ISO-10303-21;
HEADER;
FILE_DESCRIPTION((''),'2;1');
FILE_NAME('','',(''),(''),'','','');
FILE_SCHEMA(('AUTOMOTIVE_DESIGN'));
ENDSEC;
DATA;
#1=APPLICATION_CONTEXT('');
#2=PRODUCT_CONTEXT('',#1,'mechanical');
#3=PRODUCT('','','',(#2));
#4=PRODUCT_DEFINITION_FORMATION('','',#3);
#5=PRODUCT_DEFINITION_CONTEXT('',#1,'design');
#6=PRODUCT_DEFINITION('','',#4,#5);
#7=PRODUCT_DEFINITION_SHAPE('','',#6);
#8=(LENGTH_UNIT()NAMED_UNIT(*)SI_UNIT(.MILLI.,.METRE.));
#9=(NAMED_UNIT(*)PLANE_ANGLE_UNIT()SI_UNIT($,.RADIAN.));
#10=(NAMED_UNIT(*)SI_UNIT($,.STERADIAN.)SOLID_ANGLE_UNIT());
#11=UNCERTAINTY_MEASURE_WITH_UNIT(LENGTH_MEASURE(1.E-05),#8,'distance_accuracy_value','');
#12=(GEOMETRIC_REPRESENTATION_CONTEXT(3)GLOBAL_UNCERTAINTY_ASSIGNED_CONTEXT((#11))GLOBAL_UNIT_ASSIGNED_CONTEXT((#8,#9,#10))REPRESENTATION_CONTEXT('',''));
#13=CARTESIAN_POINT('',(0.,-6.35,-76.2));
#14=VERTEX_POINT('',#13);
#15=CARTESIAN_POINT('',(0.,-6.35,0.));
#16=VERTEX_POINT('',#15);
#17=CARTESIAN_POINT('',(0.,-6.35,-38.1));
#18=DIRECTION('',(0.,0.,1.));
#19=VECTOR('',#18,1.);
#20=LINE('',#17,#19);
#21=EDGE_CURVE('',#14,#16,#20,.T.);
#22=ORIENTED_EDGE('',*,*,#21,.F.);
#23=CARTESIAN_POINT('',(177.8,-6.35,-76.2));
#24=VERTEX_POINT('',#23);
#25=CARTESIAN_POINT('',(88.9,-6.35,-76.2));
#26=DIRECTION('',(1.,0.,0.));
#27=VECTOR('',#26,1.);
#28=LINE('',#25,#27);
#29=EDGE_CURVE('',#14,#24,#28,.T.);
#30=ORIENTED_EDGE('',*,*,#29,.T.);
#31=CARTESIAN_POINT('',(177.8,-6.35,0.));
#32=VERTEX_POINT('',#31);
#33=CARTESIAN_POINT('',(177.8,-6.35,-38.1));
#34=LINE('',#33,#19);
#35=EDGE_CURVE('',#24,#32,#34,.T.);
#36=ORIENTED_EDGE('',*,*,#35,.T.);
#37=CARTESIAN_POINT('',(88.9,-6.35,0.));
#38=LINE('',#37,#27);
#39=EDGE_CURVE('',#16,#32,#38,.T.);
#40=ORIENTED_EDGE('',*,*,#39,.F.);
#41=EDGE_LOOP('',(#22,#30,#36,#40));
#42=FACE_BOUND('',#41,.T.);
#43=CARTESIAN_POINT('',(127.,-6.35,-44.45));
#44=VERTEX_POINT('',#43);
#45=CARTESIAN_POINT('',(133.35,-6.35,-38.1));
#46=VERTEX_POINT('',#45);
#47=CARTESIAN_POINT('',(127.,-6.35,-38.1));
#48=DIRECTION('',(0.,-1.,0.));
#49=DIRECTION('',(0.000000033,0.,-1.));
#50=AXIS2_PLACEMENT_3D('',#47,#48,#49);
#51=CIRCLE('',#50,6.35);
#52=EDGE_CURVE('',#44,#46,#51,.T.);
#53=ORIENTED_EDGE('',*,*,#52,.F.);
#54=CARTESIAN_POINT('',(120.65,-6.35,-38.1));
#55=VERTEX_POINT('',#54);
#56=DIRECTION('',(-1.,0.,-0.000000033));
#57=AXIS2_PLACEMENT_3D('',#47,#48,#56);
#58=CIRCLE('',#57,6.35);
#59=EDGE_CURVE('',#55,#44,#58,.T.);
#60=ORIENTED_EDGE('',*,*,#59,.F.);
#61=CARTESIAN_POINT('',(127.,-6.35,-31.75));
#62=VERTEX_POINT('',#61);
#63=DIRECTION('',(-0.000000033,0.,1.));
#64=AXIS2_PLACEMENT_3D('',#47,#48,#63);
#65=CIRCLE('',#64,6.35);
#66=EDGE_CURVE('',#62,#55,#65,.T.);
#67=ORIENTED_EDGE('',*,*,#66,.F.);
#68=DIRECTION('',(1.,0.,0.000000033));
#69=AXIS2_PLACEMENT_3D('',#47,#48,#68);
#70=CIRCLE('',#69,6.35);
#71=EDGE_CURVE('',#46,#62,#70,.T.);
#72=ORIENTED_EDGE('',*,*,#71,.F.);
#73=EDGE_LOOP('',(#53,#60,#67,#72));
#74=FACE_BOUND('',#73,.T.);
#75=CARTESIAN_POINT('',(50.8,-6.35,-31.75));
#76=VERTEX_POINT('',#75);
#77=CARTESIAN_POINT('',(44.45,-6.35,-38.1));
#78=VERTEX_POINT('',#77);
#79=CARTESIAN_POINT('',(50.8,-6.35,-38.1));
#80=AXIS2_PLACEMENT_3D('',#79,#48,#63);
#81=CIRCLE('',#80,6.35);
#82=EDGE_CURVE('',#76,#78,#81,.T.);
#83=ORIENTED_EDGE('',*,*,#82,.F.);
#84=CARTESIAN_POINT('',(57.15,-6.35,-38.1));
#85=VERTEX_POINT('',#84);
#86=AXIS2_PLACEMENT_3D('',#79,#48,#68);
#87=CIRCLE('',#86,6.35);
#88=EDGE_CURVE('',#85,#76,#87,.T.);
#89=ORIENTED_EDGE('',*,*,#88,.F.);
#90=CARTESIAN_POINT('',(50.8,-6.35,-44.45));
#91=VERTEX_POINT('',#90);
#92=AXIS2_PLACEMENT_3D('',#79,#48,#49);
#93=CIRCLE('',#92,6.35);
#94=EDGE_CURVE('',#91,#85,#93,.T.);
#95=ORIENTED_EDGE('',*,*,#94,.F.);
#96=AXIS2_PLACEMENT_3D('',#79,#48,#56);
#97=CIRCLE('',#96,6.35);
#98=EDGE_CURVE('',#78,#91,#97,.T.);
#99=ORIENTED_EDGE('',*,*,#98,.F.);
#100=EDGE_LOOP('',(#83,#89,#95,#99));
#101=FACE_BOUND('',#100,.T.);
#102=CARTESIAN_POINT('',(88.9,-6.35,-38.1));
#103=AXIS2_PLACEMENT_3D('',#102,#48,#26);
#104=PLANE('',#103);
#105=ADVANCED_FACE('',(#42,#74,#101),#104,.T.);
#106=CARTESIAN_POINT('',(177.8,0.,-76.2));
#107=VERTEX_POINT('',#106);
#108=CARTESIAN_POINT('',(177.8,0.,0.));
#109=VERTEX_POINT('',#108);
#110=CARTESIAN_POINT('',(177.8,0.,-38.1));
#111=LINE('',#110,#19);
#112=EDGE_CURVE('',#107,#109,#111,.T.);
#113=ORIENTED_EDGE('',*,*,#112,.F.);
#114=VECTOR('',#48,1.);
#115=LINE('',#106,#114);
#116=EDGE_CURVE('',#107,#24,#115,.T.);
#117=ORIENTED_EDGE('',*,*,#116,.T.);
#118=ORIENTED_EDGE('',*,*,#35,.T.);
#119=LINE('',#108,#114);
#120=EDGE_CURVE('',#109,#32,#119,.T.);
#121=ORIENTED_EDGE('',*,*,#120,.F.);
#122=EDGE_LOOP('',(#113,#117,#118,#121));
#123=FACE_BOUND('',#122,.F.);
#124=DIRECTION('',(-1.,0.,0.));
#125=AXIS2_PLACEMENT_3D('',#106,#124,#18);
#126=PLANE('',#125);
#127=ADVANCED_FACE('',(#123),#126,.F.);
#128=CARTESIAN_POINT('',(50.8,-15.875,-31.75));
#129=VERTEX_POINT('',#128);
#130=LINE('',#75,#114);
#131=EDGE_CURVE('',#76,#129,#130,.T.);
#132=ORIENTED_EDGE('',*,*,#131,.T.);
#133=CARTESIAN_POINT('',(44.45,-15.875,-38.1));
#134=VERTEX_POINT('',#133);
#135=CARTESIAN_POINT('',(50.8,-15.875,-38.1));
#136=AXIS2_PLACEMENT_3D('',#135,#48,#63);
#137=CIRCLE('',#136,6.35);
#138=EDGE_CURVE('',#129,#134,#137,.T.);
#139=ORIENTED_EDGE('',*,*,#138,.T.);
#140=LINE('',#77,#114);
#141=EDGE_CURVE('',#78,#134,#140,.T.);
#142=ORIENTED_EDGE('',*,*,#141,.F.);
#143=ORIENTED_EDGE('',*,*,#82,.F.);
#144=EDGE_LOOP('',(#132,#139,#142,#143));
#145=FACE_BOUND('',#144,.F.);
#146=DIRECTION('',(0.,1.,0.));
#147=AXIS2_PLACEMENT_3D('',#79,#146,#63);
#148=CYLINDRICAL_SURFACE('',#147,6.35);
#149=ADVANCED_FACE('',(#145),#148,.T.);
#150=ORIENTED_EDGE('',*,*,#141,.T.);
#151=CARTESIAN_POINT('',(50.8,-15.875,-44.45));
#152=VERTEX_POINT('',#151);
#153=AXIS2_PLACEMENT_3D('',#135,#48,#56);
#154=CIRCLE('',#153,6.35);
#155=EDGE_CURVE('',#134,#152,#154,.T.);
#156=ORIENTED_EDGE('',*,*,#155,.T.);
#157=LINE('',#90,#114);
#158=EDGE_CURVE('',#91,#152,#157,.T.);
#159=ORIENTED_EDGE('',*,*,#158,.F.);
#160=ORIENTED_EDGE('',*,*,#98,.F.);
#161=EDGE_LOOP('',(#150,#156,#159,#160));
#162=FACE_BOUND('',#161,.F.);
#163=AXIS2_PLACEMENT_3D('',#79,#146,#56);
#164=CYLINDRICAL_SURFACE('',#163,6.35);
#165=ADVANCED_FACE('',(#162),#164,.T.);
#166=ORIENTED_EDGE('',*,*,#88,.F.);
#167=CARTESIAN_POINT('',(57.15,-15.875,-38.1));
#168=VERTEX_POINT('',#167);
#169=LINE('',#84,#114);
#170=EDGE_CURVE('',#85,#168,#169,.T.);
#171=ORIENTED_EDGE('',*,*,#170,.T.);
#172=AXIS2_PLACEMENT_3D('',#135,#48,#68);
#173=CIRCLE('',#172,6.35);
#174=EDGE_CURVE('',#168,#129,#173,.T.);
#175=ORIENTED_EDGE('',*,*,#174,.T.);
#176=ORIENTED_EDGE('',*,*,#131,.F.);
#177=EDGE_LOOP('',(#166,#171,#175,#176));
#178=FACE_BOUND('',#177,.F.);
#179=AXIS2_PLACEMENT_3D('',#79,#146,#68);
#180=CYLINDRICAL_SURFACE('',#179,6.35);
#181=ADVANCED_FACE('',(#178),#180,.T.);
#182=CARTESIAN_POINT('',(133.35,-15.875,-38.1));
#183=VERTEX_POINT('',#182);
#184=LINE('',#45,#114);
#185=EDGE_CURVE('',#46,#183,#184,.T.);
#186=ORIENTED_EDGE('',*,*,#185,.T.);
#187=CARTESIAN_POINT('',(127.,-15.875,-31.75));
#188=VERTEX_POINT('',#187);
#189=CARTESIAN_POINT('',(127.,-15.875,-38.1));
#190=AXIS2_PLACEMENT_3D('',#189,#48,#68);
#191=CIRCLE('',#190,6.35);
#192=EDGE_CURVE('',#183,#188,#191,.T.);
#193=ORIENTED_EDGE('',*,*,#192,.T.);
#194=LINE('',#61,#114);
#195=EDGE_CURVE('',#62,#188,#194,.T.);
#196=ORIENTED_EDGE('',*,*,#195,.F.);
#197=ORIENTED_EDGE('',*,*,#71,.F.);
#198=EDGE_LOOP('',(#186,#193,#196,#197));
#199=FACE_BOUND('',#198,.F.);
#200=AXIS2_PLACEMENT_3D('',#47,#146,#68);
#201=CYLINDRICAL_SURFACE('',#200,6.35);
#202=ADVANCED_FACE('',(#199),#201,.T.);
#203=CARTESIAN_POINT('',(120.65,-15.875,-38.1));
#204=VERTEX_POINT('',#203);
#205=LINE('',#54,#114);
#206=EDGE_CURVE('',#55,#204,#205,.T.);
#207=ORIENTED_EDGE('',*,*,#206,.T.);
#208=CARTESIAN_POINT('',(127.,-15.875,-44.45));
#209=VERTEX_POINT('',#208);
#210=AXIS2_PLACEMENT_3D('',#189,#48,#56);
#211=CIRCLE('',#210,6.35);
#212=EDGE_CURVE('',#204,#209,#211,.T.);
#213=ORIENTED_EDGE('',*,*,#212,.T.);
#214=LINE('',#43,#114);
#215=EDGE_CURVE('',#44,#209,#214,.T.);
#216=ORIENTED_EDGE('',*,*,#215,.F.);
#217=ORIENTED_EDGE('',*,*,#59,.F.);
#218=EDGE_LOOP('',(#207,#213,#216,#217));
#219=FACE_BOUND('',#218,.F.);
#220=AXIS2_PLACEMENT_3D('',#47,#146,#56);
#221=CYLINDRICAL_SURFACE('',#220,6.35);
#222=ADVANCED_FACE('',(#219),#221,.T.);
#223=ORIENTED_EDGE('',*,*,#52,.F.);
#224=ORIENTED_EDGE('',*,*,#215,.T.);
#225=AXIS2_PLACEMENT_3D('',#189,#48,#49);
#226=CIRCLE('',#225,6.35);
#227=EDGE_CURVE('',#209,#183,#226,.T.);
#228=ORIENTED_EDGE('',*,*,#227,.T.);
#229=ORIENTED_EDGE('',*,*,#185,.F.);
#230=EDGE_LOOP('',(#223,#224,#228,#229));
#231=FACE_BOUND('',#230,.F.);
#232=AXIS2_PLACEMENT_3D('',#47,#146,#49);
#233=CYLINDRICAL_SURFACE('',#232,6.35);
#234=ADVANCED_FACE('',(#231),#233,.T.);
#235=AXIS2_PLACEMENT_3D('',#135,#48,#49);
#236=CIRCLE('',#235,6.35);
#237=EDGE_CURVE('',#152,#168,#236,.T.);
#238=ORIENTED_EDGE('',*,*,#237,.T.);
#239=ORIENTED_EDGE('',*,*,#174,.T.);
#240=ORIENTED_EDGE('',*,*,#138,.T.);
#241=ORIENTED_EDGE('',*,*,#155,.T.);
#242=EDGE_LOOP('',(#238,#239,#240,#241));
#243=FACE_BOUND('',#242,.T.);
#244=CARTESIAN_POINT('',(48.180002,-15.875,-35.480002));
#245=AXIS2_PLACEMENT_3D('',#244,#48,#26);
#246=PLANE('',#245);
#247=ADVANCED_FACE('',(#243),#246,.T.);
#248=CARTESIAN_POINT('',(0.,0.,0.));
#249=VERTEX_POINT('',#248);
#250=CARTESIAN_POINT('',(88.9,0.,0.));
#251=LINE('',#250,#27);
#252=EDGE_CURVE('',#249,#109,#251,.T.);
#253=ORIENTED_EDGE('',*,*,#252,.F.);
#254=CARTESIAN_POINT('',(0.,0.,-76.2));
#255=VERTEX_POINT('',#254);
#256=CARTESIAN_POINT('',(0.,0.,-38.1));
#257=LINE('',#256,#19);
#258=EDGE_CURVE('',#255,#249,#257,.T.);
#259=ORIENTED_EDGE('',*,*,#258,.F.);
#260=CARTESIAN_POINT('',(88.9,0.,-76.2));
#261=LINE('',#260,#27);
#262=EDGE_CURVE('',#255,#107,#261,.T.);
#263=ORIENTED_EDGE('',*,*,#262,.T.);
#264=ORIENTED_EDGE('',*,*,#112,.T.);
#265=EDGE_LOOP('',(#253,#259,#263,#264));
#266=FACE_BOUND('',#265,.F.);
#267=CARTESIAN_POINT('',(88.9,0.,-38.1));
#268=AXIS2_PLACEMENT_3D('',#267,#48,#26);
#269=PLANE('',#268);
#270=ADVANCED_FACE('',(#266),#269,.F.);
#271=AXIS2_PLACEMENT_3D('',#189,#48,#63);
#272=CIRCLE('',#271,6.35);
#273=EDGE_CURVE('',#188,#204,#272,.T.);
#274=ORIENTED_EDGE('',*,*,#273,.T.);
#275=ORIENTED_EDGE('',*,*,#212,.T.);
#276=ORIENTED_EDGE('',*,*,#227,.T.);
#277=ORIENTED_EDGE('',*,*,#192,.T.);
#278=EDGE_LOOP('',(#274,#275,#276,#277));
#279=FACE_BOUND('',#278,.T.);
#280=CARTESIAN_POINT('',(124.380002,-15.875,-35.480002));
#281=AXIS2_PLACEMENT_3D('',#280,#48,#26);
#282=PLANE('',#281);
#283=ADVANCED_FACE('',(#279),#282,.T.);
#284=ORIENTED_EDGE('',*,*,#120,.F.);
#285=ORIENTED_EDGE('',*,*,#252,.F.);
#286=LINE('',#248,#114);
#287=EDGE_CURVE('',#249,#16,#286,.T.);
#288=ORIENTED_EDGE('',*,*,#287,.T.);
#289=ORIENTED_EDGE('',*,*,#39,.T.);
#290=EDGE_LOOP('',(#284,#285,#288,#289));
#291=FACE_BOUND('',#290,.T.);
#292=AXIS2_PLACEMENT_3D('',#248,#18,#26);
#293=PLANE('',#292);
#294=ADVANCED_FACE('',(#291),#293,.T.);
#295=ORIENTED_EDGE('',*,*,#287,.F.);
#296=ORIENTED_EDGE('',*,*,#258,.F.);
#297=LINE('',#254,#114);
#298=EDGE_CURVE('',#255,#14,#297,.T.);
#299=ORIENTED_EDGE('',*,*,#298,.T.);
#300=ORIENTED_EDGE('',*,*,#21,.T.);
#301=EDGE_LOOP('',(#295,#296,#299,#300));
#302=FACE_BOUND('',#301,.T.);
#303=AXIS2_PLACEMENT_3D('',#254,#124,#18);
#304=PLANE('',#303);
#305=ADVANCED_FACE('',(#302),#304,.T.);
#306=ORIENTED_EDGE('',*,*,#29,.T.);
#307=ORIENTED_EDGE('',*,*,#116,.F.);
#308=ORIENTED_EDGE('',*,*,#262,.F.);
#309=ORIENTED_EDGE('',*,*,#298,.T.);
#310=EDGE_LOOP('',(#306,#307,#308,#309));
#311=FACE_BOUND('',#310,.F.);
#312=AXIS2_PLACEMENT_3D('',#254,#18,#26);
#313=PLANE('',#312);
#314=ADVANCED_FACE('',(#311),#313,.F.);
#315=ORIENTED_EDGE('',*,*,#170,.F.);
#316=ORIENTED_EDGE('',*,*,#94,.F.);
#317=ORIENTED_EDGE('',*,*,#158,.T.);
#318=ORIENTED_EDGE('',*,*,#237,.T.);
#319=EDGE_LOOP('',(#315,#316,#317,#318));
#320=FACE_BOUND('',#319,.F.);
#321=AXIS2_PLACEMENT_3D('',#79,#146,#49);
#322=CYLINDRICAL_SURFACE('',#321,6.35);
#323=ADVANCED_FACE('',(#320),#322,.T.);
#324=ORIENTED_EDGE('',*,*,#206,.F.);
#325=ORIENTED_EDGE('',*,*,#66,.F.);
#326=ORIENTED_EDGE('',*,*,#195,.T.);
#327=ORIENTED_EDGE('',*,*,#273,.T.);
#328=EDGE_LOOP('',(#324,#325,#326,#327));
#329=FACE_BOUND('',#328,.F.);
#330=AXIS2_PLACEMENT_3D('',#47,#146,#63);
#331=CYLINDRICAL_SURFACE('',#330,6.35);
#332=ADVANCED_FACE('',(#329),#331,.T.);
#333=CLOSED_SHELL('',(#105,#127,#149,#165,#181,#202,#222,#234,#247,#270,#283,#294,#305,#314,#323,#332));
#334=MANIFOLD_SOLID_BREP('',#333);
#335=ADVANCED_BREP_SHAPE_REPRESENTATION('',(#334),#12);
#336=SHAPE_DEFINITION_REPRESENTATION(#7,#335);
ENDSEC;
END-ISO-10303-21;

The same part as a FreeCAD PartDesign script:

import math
import FreeCAD as App
import Part
import Sketcher
Q = App.Units.Quantity

doc = App.newDocument("Part")
body = doc.addObject("PartDesign::Body", "Body")

# Sketch on XZ plane
sketch1 = body.newObject("Sketcher::SketchObject", "Sketch")
sketch1.AttachmentSupport = (doc.getObject("XZ_Plane"), [""])
sketch1.MapMode = "FlatFace"
sketch1.addGeometry([
    Part.LineSegment(App.Vector(0, 0, 0), App.Vector(0, -76, 0)),
    Part.LineSegment(App.Vector(0, -76, 0), App.Vector(178, -76, 0)),
    Part.LineSegment(App.Vector(178, -76, 0), App.Vector(178, 0, 0)),
    Part.LineSegment(App.Vector(178, 0, 0), App.Vector(0, 0, 0)),
], False)
sketch1.addConstraint([
    Sketcher.Constraint("Coincident", 0, 2, 1, 1),
    Sketcher.Constraint("Coincident", 1, 2, 2, 1),
    Sketcher.Constraint("Coincident", 2, 2, 3, 1),
    Sketcher.Constraint("Coincident", 3, 2, 0, 1),
    Sketcher.Constraint("Vertical", 0),
    Sketcher.Constraint("Horizontal", 1),
    Sketcher.Constraint("Vertical", 2),
    Sketcher.Constraint("Horizontal", 3),
    Sketcher.Constraint("Coincident", 3, 2, -1, 1),
    Sketcher.Constraint("DistanceX", 1, 1, 1, 2, Q("7 in")),
    Sketcher.Constraint("DistanceY", 0, 2, 0, 1, Q("3 in")),
])
pad1 = body.newObject("PartDesign::Pad", "Pad")
pad1.Profile = sketch1
pad1.Length = Q("0.25 in")

# Sketch on XZ plane
sketch2 = body.newObject("Sketcher::SketchObject", "Sketch001")
sketch2.AttachmentSupport = (doc.getObject("XZ_Plane"), [""])
sketch2.MapMode = "FlatFace"
sketch2.AttachmentOffset = App.Placement(App.Vector(0, 0, 0.25 * 25.4), App.Rotation())
sketch2.addGeometry([
    Part.ArcOfCircle(Part.Circle(App.Vector(51, -38, 0), App.Vector(0, 0, 1), 6), math.radians(90), math.radians(180)),  # 0
    Part.ArcOfCircle(Part.Circle(App.Vector(51, -38, 0), App.Vector(0, 0, 1), 6), math.radians(-180), math.radians(-90)),  # 1
    Part.ArcOfCircle(Part.Circle(App.Vector(51, -38, 0), App.Vector(0, 0, 1), 6), math.radians(-90), math.radians(0)),  # 2
    Part.ArcOfCircle(Part.Circle(App.Vector(51, -38, 0), App.Vector(0, 0, 1), 6), math.radians(0), math.radians(90)),  # 3
    Part.ArcOfCircle(Part.Circle(App.Vector(127, -38, 0), App.Vector(0, 0, 1), 6), math.radians(90), math.radians(180)),  # 4
    Part.ArcOfCircle(Part.Circle(App.Vector(127, -38, 0), App.Vector(0, 0, 1), 6), math.radians(-180), math.radians(-90)),  # 5
    Part.ArcOfCircle(Part.Circle(App.Vector(127, -38, 0), App.Vector(0, 0, 1), 6), math.radians(-90), math.radians(0)),  # 6
    Part.ArcOfCircle(Part.Circle(App.Vector(127, -38, 0), App.Vector(0, 0, 1), 6), math.radians(0), math.radians(90)),  # 7
], False)
sketch2.addConstraint([
    Sketcher.Constraint("Tangent", 0, 2, 1, 1),
    Sketcher.Constraint("Tangent", 1, 2, 2, 1),
    Sketcher.Constraint("Tangent", 2, 2, 3, 1),
    Sketcher.Constraint("Tangent", 3, 2, 0, 1),
    Sketcher.Constraint("Tangent", 4, 2, 5, 1),
    Sketcher.Constraint("Tangent", 5, 2, 6, 1),
    Sketcher.Constraint("Tangent", 6, 2, 7, 1),
    Sketcher.Constraint("Tangent", 7, 2, 4, 1),
    Sketcher.Constraint("Equal", 0, 1),
    Sketcher.Constraint("Equal", 3, 4),
    Sketcher.Constraint("Equal", 4, 5),
    Sketcher.Constraint("Horizontal", 3, 3, 4, 3),
    Sketcher.Constraint("Horizontal", 7, 3, 0, 2),
    Sketcher.Constraint("Horizontal", 0, 2, 2, 2),
    Sketcher.Constraint("Horizontal", 2, 2, 4, 2),
    Sketcher.Constraint("Horizontal", 4, 2, 6, 2),
    Sketcher.Constraint("Vertical", 3, 3, 1, 2),
    Sketcher.Constraint("Vertical", 1, 2, 3, 2),
    Sketcher.Constraint("Vertical", 7, 3, 5, 2),
    Sketcher.Constraint("Vertical", 5, 2, 7, 2),
    Sketcher.Constraint("Radius", 0, Q("0.25 in")),
    Sketcher.Constraint("DistanceX", -1, 1, 0, 3, Q("2 in")),
    Sketcher.Constraint("DistanceX", -1, 1, 4, 3, Q("5 in")),
    Sketcher.Constraint("DistanceY", 0, 3, -1, 1, Q("1.5 in")),
])
pad2 = body.newObject("PartDesign::Pad", "Pad001")
pad2.Profile = sketch2
pad2.Length = Q("0.375 in")

doc.recompute()
